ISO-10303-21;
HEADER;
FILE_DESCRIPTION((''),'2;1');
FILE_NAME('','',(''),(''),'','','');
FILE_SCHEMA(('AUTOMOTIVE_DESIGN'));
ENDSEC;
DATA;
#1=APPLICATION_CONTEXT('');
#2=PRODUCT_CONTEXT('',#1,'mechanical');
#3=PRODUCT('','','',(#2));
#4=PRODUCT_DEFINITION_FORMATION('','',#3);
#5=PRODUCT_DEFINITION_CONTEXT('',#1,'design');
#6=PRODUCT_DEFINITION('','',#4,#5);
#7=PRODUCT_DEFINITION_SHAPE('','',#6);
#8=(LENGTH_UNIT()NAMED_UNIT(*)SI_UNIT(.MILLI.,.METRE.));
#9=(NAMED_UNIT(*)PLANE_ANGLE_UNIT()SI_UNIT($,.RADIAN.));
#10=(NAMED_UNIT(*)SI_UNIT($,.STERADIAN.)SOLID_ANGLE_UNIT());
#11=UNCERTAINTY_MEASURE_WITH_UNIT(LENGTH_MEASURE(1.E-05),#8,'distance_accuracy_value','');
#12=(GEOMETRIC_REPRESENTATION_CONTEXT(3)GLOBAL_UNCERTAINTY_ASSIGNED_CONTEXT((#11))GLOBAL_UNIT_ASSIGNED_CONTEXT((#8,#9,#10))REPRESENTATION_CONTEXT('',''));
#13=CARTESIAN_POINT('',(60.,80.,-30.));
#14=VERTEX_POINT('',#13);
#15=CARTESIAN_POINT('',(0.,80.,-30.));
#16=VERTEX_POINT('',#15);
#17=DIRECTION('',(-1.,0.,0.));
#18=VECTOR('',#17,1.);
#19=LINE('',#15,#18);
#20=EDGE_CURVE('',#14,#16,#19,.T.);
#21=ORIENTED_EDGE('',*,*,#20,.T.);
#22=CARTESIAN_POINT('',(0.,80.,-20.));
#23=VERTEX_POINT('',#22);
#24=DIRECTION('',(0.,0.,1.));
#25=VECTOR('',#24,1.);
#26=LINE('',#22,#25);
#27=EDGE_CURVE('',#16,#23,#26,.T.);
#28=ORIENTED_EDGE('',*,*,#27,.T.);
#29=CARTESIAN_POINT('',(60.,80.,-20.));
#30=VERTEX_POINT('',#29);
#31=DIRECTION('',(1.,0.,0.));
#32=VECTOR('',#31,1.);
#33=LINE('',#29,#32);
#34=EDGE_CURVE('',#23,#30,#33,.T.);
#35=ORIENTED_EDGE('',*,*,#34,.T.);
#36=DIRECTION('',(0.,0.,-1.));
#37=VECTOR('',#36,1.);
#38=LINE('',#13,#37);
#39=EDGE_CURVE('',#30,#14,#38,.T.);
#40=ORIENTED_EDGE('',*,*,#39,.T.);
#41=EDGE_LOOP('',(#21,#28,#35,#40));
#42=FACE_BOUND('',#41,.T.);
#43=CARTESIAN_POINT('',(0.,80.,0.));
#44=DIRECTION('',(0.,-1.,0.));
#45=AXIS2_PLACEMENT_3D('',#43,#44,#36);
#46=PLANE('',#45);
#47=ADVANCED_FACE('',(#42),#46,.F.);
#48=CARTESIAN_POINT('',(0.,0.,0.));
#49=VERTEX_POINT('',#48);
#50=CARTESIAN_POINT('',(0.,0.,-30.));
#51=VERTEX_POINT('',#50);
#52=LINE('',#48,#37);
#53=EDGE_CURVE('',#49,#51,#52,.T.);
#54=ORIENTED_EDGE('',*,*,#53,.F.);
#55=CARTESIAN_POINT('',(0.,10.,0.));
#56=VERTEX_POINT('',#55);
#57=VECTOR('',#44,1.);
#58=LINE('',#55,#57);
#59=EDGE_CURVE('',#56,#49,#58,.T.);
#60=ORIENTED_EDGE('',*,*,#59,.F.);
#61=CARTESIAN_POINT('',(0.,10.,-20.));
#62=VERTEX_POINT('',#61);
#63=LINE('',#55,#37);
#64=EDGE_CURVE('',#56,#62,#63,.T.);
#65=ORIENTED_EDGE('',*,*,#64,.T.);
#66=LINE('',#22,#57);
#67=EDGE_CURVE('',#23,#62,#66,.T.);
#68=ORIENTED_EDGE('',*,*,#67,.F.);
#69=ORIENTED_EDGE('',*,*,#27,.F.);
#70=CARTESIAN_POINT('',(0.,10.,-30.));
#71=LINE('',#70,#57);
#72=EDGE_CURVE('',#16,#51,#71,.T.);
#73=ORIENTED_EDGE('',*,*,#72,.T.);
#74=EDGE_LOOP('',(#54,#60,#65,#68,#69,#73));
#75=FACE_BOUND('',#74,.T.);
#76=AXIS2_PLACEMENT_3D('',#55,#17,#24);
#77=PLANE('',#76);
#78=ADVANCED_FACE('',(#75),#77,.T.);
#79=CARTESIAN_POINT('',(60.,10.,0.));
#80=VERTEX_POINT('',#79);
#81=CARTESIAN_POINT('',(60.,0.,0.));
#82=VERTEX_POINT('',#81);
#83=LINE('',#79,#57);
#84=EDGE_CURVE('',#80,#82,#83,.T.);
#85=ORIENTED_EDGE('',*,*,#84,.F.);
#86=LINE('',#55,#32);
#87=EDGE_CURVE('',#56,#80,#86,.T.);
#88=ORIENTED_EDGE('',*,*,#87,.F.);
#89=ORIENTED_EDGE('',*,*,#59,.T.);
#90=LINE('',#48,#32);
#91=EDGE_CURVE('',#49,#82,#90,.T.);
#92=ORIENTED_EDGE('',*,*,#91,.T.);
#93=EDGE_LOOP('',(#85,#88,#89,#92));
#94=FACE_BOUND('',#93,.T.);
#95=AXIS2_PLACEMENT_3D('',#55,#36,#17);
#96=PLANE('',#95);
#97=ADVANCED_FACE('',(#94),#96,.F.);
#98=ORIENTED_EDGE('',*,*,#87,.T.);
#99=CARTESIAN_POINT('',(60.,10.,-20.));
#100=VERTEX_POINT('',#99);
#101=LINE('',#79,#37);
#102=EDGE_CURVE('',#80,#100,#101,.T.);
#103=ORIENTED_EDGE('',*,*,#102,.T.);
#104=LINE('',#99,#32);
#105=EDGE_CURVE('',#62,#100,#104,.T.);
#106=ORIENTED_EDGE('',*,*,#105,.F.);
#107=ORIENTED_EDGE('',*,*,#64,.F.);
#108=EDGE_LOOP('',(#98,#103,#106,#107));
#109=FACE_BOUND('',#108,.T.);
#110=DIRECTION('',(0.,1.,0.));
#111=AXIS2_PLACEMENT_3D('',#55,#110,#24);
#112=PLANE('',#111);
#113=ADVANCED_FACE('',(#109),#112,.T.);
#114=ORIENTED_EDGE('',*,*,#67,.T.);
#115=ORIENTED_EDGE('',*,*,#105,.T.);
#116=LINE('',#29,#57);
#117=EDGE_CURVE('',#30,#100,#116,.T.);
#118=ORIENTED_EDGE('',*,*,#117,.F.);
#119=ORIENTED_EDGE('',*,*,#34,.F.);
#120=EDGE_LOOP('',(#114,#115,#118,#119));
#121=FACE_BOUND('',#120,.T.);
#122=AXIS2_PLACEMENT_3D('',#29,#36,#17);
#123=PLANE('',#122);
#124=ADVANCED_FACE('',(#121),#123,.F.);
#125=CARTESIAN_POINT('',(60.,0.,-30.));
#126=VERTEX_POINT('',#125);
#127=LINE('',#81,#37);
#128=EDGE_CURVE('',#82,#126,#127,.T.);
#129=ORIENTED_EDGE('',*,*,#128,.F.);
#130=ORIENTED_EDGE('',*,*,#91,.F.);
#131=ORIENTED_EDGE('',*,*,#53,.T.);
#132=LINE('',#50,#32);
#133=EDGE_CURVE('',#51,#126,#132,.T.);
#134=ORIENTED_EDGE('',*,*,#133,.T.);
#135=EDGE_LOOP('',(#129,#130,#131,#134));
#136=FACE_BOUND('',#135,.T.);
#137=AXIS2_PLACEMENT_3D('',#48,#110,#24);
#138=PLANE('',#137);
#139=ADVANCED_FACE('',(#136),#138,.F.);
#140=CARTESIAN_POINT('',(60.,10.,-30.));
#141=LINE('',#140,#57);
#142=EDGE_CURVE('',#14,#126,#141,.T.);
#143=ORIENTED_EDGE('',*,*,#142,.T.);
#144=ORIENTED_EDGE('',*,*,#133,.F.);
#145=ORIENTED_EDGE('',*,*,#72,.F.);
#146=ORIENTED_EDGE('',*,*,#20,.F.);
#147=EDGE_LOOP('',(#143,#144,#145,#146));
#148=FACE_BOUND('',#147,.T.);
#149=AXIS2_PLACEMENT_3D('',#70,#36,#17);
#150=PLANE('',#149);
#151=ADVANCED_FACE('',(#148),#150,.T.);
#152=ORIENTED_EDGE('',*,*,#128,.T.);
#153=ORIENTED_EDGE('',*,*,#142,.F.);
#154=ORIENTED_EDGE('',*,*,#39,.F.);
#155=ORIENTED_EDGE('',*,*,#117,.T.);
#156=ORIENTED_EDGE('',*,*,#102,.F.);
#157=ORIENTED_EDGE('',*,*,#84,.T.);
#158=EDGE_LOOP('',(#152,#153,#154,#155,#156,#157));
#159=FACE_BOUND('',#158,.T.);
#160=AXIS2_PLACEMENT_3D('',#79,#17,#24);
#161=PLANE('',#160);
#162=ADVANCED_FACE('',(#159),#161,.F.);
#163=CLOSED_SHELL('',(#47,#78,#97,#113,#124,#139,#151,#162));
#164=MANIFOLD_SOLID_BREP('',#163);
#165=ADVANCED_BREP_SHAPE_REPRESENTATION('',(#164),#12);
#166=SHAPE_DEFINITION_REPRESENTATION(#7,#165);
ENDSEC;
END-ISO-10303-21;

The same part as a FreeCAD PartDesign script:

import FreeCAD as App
import Part
import Sketcher
Q = App.Units.Quantity

doc = App.newDocument("Part")
body = doc.addObject("PartDesign::Body", "Body")

# Sketch on XZ plane
sketch1 = doc.addObject("Sketcher::SketchObject", "Sketch")
body.addObject(sketch1)
sketch1.AttachmentSupport = (doc.XZ_Plane, [""])
sketch1.MapMode = "FlatFace"
sketch1.addGeometry([
    Part.LineSegment(App.Vector(0, 0, 0), App.Vector(60, 0, 0)),
    Part.LineSegment(App.Vector(60, 0, 0), App.Vector(60, -30, 0)),
    Part.LineSegment(App.Vector(60, -30, 0), App.Vector(0, -30, 0)),
    Part.LineSegment(App.Vector(0, -30, 0), App.Vector(0, 0, 0)),
], False)
sketch1.addConstraint([
    Sketcher.Constraint("Coincident", 0, 2, 1, 1),
    Sketcher.Constraint("Coincident", 1, 2, 2, 1),
    Sketcher.Constraint("Coincident", 2, 2, 3, 1),
    Sketcher.Constraint("Coincident", 3, 2, 0, 1),
    Sketcher.Constraint("Horizontal", 0),
    Sketcher.Constraint("Vertical", 1),
    Sketcher.Constraint("Horizontal", 2),
    Sketcher.Constraint("Vertical", 3),
    Sketcher.Constraint("Coincident", 3, 2, -1, 1),
    Sketcher.Constraint("DistanceX", 0, 1, 0, 2, Q("60 mm")),
    Sketcher.Constraint("DistanceY", 1, 2, 1, 1, Q("30 mm")),
])
pad1 = doc.addObject("PartDesign::Pad", "Pad")
body.addObject(pad1)
pad1.Profile = sketch1
pad1.Length = 10
pad1.Reversed = True

# Sketch on XZ plane
sketch2 = doc.addObject("Sketcher::SketchObject", "Sketch001")
body.addObject(sketch2)
sketch2.AttachmentSupport = (doc.XZ_Plane, [""])
sketch2.MapMode = "FlatFace"
sketch2.AttachmentOffset = App.Placement(App.Vector(0, 0, -10), App.Rotation())
sketch2.addGeometry([
    Part.LineSegment(App.Vector(0, -30, 0), App.Vector(0, -20, 0)),
    Part.LineSegment(App.Vector(0, -20, 0), App.Vector(60, -20, 0)),
    Part.LineSegment(App.Vector(60, -20, 0), App.Vector(60, -30, 0)),
    Part.LineSegment(App.Vector(60, -30, 0), App.Vector(0, -30, 0)),
], False)
sketch2.addConstraint([
    Sketcher.Constraint("Coincident", 0, 2, 1, 1),
    Sketcher.Constraint("Coincident", 1, 2, 2, 1),
    Sketcher.Constraint("Coincident", 2, 2, 3, 1),
    Sketcher.Constraint("Coincident", 3, 2, 0, 1),
    Sketcher.Constraint("Vertical", 0),
    Sketcher.Constraint("Horizontal", 1),
    Sketcher.Constraint("Vertical", 2),
    Sketcher.Constraint("Horizontal", 3),
    Sketcher.Constraint("PointOnObject", 0, 2, -2),
    Sketcher.Constraint("DistanceX", 1, 1, 1, 2, Q("60 mm")),
    Sketcher.Constraint("DistanceY", 0, 1, 0, 2, Q("10 mm")),
    Sketcher.Constraint("DistanceY", 0, 2, -1, 1, Q("20 mm")),
])
pad2 = doc.addObject("PartDesign::Pad", "Pad001")
body.addObject(pad2)
pad2.Profile = sketch2
pad2.Length = 70
pad2.Reversed = True

doc.recompute()
